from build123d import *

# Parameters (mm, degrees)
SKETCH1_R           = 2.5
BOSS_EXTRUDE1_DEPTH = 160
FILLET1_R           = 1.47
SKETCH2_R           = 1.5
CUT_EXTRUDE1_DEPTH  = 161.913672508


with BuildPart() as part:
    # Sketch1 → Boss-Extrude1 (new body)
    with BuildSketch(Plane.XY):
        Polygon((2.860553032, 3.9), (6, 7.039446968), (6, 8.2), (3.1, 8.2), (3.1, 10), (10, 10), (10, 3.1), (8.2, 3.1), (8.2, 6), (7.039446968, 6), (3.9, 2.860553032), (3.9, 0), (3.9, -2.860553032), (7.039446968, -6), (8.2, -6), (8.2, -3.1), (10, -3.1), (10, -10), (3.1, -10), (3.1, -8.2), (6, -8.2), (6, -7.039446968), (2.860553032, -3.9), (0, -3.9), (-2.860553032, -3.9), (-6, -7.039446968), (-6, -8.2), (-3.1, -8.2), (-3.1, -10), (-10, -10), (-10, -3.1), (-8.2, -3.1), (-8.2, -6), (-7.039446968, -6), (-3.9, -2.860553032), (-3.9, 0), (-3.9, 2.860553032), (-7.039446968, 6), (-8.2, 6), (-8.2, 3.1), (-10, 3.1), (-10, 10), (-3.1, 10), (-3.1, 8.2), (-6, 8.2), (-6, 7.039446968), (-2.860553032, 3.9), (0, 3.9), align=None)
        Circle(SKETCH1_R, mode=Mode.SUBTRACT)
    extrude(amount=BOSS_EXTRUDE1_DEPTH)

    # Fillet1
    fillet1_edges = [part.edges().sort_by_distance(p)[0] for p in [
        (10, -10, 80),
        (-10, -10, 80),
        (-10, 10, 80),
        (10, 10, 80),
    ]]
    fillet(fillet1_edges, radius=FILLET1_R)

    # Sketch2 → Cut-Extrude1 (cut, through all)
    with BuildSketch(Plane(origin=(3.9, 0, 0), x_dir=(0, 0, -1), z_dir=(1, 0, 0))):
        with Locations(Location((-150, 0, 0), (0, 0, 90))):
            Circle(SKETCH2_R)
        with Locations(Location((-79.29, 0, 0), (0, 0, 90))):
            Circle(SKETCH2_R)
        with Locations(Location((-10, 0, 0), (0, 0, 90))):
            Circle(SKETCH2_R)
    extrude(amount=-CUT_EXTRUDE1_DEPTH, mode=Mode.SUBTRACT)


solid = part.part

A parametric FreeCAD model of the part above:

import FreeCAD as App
import Part
import Sketcher


def edges_at(feature, points):
    """Names of the edges that pass closest to the given points."""
    edges = feature.Shape.Edges
    near = lambda p: min(range(len(edges)), key=lambda i: edges[i].distToShape(Part.Vertex(*p))[0])
    return sorted({f"Edge{near(p) + 1}" for p in points})


def add_polygon(sketch, points):
    """Adds a closed chain of lines whose ends are joined by coincident constraints."""
    first, n = sketch.GeometryCount, len(points)
    for a, b in zip(points, points[1:] + points[:1]):
        sketch.addGeometry(Part.LineSegment(App.Vector(*a, 0), App.Vector(*b, 0)), False)
    for i in range(n):
        sketch.addConstraint(Sketcher.Constraint("Coincident", first + i, 2, first + (i + 1) % n, 1))

doc = App.newDocument("Part")
params = doc.addObject("Spreadsheet::Sheet", "Params")
for row, (alias, value) in enumerate([
    ("sketch1_diameter", "5 mm"),
    ("sketch1_width", "2.9 mm"),
    ("sketch1_width2", "6.9 mm"),
    ("sketch1_width3", "1.8 mm"),
    ("pad1_length", "160 mm"),
    ("fillet_radius", "1.47 mm"),
    ("sketch2_diameter", "3 mm"),
], start=1):
    params.set(f"A{row}", alias)
    params.set(f"B{row}", "=" + value)
    params.setAlias(f"B{row}", alias)

body = doc.addObject("PartDesign::Body", "Body")

# Sketch on XY plane
sketch1 = body.newObject("Sketcher::SketchObject", "Sketch")
sketch1.AttachmentSupport = (doc.getObject("XY_Plane"), [""])
sketch1.MapMode = "FlatFace"
add_polygon(sketch1, [(6, 7.039447), (2.860553, 3.9), (-2.860553, 3.9), (-6, 7.039447), (-6, 8.2), (-3.1, 8.2), (-3.1, 10), (-10, 10), (-10, 3.1), (-8.2, 3.1), (-8.2, 6), (-7.039447, 6), (-3.9, 2.860553), (-3.9, -2.860553), (-7.039447, -6), (-8.2, -6), (-8.2, -3.1), (-10, -3.1), (-10, -10), (-3.1, -10), (-3.1, -8.2), (-6, -8.2), (-6, -7.039447), (-2.860553, -3.9), (2.860553, -3.9), (6, -7.039447), (6, -8.2), (3.1, -8.2), (3.1, -10), (10, -10), (10, -3.1), (8.2, -3.1), (8.2, -6), (7.039447, -6), (3.9, -2.860553), (3.9, 2.860553), (7.039447, 6), (8.2, 6), (8.2, 3.1), (10, 3.1), (10, 10), (3.1, 10), (3.1, 8.2), (6, 8.2)])  # lines 0-43
sketch1.addGeometry(Part.Circle(App.Vector(0, 0, 0), App.Vector(0, 0, 1), 2.5), False)  # 44
sketch1.addConstraint([
    Sketcher.Constraint("Horizontal", 1),
    Sketcher.Constraint("Vertical", 3),
    Sketcher.Constraint("Horizontal", 4),
    Sketcher.Constraint("Vertical", 5),
    Sketcher.Constraint("Horizontal", 6),
    Sketcher.Constraint("Vertical", 7),
    Sketcher.Constraint("Horizontal", 8),
    Sketcher.Constraint("Vertical", 9),
    Sketcher.Constraint("Horizontal", 10),
    Sketcher.Constraint("Vertical", 12),
    Sketcher.Constraint("Horizontal", 14),
    Sketcher.Constraint("Vertical", 15),
    Sketcher.Constraint("Horizontal", 16),
    Sketcher.Constraint("Vertical", 17),
    Sketcher.Constraint("Horizontal", 18),
    Sketcher.Constraint("Vertical", 19),
    Sketcher.Constraint("Horizontal", 20),
    Sketcher.Constraint("Vertical", 21),
    Sketcher.Constraint("Horizontal", 23),
    Sketcher.Constraint("Vertical", 25),
    Sketcher.Constraint("Horizontal", 26),
    Sketcher.Constraint("Vertical", 27),
    Sketcher.Constraint("Horizontal", 28),
    Sketcher.Constraint("Vertical", 29),
    Sketcher.Constraint("Horizontal", 30),
    Sketcher.Constraint("Vertical", 31),
    Sketcher.Constraint("Horizontal", 32),
    Sketcher.Constraint("Vertical", 34),
    Sketcher.Constraint("Horizontal", 36),
    Sketcher.Constraint("Vertical", 37),
    Sketcher.Constraint("Horizontal", 38),
    Sketcher.Constraint("Vertical", 39),
    Sketcher.Constraint("Horizontal", 40),
    Sketcher.Constraint("Vertical", 41),
    Sketcher.Constraint("Horizontal", 42),
    Sketcher.Constraint("Vertical", 43),
    Sketcher.Constraint("Coincident", 44, 3, -1, 1),
    Sketcher.Constraint("Symmetric", 0, 2, 22, 2, -1, 1),
    Sketcher.Constraint("Symmetric", 2, 2, 24, 2, -1, 1),
    Sketcher.Constraint("Symmetric", 4, 2, 26, 2, -1, 1),
    Sketcher.Constraint("Symmetric", 6, 2, 28, 2, -1, 1),
    Sketcher.Constraint("Symmetric", 8, 2, 30, 2, -1, 1),
    Sketcher.Constraint("Symmetric", 10, 2, 32, 2, -1, 1),
    Sketcher.Constraint("Symmetric", 11, 2, 33, 2, -1, 1),
    Sketcher.Constraint("Symmetric", 13, 2, 35, 2, -1, 1),
    Sketcher.Constraint("Symmetric", 15, 2, 37, 2, -1, 1),
    Sketcher.Constraint("Symmetric", 17, 2, 39, 2, -1, 1),
    Sketcher.Constraint("Symmetric", 19, 2, 41, 2, -1, 1),
    Sketcher.Constraint("Symmetric", 21, 2, 43, 2, -1, 1),
    Sketcher.Constraint("Symmetric", 21, 2, 24, 2, -2),
    Sketcher.Constraint("Symmetric", 19, 2, 26, 2, -2),
    Sketcher.Constraint("Symmetric", 17, 2, 28, 2, -2),
    Sketcher.Constraint("Symmetric", 15, 2, 30, 2, -2),
    Sketcher.Constraint("Symmetric", 13, 2, 32, 2, -2),
    Sketcher.Constraint("Perpendicular", 0, 2),
    Sketcher.Constraint("Parallel", 2, 11),
    Sketcher.Constraint("Perpendicular", 11, 13),
    Sketcher.Constraint("Perpendicular", 22, 24),
    Sketcher.Constraint("Perpendicular", 33, 35),
    Sketcher.Constraint("Horizontal", 12, 2, 33, 2),
    Sketcher.Constraint("Equal", 36, 3),
    Sketcher.Constraint("Equal", 38, 5),
    Sketcher.Constraint("Equal", 40, 7),
    Sketcher.Constraint("Equal", 42, 9),
    Sketcher.Constraint("Equal", 23, 12),
    Sketcher.Constraint("Equal", 2, 11),
    Sketcher.Constraint("Diameter", 44, 5.0),
    Sketcher.Constraint("DistanceX", 4, 1, 4, 2, 2.9),
    Sketcher.Constraint("DistanceX", 6, 2, 6, 1, 6.9),
    Sketcher.Constraint("DistanceX", 8, 1, 8, 2, 1.8),
    Sketcher.Constraint("DistanceX", 2, 2, -1, 1, 6.0),
    Sketcher.Constraint("DistanceY", -1, 1, 0, 2, 3.9),
    Sketcher.Constraint("Distance", 0, 4.439848),
])
sketch1.setExpression("Constraints[110]", "Params.sketch1_diameter")
sketch1.setExpression("Constraints[111]", "Params.sketch1_width")
sketch1.setExpression("Constraints[112]", "Params.sketch1_width2")
sketch1.setExpression("Constraints[113]", "Params.sketch1_width3")
pad1 = body.newObject("PartDesign::Pad", "Pad")
pad1.Profile = sketch1
pad1.setExpression("Length", "Params.pad1_length")
doc.recompute()

fillet = body.newObject("PartDesign::Fillet", "Fillet")
fillet.Base = (pad1, edges_at(pad1, [
    (10, -10, 80),
    (-10, -10, 80),
    (-10, 10, 80),
    (10, 10, 80),
]))
fillet.setExpression("Radius", "Params.fillet_radius")

# Sketch on YZ plane
sketch2 = body.newObject("Sketcher::SketchObject", "Sketch001")
sketch2.AttachmentSupport = (doc.getObject("YZ_Plane"), [""])
sketch2.MapMode = "FlatFace"
sketch2.AttachmentOffset = App.Placement(App.Vector(0, 0, 3.9), App.Rotation())
sketch2.addGeometry([
    Part.Circle(App.Vector(0, 150, 0), App.Vector(0, 0, 1), 1.5),
    Part.Circle(App.Vector(0, 79.29, 0), App.Vector(0, 0, 1), 1.5),
    Part.Circle(App.Vector(0, 10, 0), App.Vector(0, 0, 1), 1.5),
], False)
sketch2.addConstraint([
    Sketcher.Constraint("Equal", 0, 1),
    Sketcher.Constraint("Equal", 1, 2),
    Sketcher.Constraint("PointOnObject", 0, 3, -2),
    Sketcher.Constraint("PointOnObject", 1, 3, -2),
    Sketcher.Constraint("PointOnObject", 2, 3, -2),
    Sketcher.Constraint("Diameter", 0, 3.0),
    Sketcher.Constraint("DistanceY", -1, 1, 0, 3, 150.0),
    Sketcher.Constraint("DistanceY", -1, 1, 2, 3, 10.0),
    Sketcher.Constraint("DistanceY", -1, 1, 1, 3, 79.29),
])
sketch2.setExpression("Constraints[5]", "Params.sketch2_diameter")
pocket1 = body.newObject("PartDesign::Pocket", "Pocket")
pocket1.Profile = sketch2
pocket1.Type = "ThroughAll"

doc.recompute()
